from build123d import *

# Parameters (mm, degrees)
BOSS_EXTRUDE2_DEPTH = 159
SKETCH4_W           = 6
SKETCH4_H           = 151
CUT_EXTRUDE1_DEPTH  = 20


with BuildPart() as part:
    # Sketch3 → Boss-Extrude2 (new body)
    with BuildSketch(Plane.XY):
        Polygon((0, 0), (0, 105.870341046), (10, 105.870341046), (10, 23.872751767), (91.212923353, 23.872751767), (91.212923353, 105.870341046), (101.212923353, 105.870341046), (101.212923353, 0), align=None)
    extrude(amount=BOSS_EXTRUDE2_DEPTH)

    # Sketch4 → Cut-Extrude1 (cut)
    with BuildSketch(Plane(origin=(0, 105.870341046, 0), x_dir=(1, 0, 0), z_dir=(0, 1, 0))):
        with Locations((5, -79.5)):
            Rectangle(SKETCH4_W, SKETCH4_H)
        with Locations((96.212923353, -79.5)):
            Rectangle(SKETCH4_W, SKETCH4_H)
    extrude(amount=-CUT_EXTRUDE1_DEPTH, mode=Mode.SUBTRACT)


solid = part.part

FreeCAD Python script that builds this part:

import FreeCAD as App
import Part
import Sketcher

V = App.Vector
Q = App.Units.Quantity


def add_polygon(sketch, points):
    """Adds a closed chain of lines whose ends are joined by coincident constraints."""
    first, n = sketch.GeometryCount, len(points)
    for a, b in zip(points, points[1:] + points[:1]):
        sketch.addGeometry(Part.LineSegment(App.Vector(*a, 0), App.Vector(*b, 0)), False)
    for i in range(n):
        sketch.addConstraint(Sketcher.Constraint("Coincident", first + i, 2, first + (i + 1) % n, 1))

doc = App.newDocument("Part")
params = doc.addObject("Spreadsheet::Sheet", "Params")
for row, (alias, value) in enumerate([
    ("sketch1_width", "10 mm"),
    ("pad1_length", "159 mm"),
    ("sketch2_width", "6 mm"),
    ("sketch2_height", "151 mm"),
    ("pocket1_length", "20 mm"),
], start=1):
    params.set(f"A{row}", alias)
    params.set(f"B{row}", "=" + value)
    params.setAlias(f"B{row}", alias)

body = doc.addObject("PartDesign::Body", "Body")

sketch1 = doc.addObject("Sketcher::SketchObject", "Sketch")
body.addObject(sketch1)
sketch1.AttachmentSupport = (doc.XY_Plane, [""])
sketch1.MapMode = "FlatFace"
add_polygon(sketch1, [(0, 105.870341), (0, 0), (101.212923, 0), (101.212923, 105.870341), (91.212923, 105.870341), (91.212923, 23.872752), (10, 23.872752), (10, 105.870341)])
sketch1.addConstraint(Sketcher.Constraint("Vertical", 0))
sketch1.addConstraint(Sketcher.Constraint("Horizontal", 1))
sketch1.addConstraint(Sketcher.Constraint("Vertical", 2))
sketch1.addConstraint(Sketcher.Constraint("Horizontal", 3))
sketch1.addConstraint(Sketcher.Constraint("Vertical", 4))
sketch1.addConstraint(Sketcher.Constraint("Horizontal", 5))
sketch1.addConstraint(Sketcher.Constraint("Vertical", 6))
sketch1.addConstraint(Sketcher.Constraint("Horizontal", 7))
sketch1.addConstraint(Sketcher.Constraint("Coincident", 0, 2, -1, 1))
sketch1.addConstraint(Sketcher.Constraint("Horizontal", 3, 2, 6, 2))
sketch1.addConstraint(Sketcher.Constraint("Equal", 3, 7))
sketch1.addConstraint(Sketcher.Constraint("DistanceX", 3, 2, 3, 1, Q("10 mm")))
sketch1.addConstraint(Sketcher.Constraint("DistanceY", 0, 2, 0, 1, Q("105.870341 mm")))
sketch1.addConstraint(Sketcher.Constraint("DistanceY", 4, 2, 4, 1, Q("81.997589 mm")))
sketch1.addConstraint(Sketcher.Constraint("DistanceX", 1, 1, 1, 2, Q("101.212923 mm")))
sketch1.setExpression("Constraints[19]", "Params.sketch1_width")
pad1 = doc.addObject("PartDesign::Pad", "Pad")
body.addObject(pad1)
pad1.Profile = sketch1
pad1.setExpression("Length", "Params.pad1_length")

sketch2 = doc.addObject("Sketcher::SketchObject", "Sketch001")
body.addObject(sketch2)
sketch2.AttachmentSupport = (doc.XZ_Plane, [""])
sketch2.MapMode = "FlatFace"
sketch2.AttachmentOffset = App.Placement(V(0, 0, -105.870341), App.Rotation())
add_polygon(sketch2, [(2, 4), (2, 155), (8, 155), (8, 4)])
add_polygon(sketch2, [(93.212923, 4), (93.212923, 155), (99.212923, 155), (99.212923, 4)])
sketch2.addConstraint(Sketcher.Constraint("Vertical", 0))
sketch2.addConstraint(Sketcher.Constraint("Horizontal", 1))
sketch2.addConstraint(Sketcher.Constraint("Vertical", 2))
sketch2.addConstraint(Sketcher.Constraint("Horizontal", 3))
sketch2.addConstraint(Sketcher.Constraint("Vertical", 4))
sketch2.addConstraint(Sketcher.Constraint("Horizontal", 5))
sketch2.addConstraint(Sketcher.Constraint("Vertical", 6))
sketch2.addConstraint(Sketcher.Constraint("Horizontal", 7))
sketch2.addConstraint(Sketcher.Constraint("Horizontal", 1, 2, 4, 2))
sketch2.addConstraint(Sketcher.Constraint("Horizontal", 3, 2, 6, 2))
sketch2.addConstraint(Sketcher.Constraint("Equal", 3, 5))
sketch2.addConstraint(Sketcher.Constraint("DistanceX", 1, 1, 1, 2, Q("6 mm")))
sketch2.addConstraint(Sketcher.Constraint("DistanceY", 0, 1, 0, 2, Q("151 mm")))
sketch2.addConstraint(Sketcher.Constraint("DistanceX", -1, 1, 0, 2, Q("2 mm")))
sketch2.addConstraint(Sketcher.Constraint("DistanceY", -1, 1, 0, 2, Q("155 mm")))
sketch2.addConstraint(Sketcher.Constraint("DistanceX", -1, 1, 4, 2, Q("93.212923 mm")))
sketch2.setExpression("Constraints[19]", "Params.sketch2_width")
sketch2.setExpression("Constraints[20]", "Params.sketch2_height")
pocket1 = doc.addObject("PartDesign::Pocket", "Pocket")
body.addObject(pocket1)
pocket1.Profile = sketch2
pocket1.setExpression("Length", "Params.pocket1_length")
pocket1.Reversed = True

doc.recompute()
